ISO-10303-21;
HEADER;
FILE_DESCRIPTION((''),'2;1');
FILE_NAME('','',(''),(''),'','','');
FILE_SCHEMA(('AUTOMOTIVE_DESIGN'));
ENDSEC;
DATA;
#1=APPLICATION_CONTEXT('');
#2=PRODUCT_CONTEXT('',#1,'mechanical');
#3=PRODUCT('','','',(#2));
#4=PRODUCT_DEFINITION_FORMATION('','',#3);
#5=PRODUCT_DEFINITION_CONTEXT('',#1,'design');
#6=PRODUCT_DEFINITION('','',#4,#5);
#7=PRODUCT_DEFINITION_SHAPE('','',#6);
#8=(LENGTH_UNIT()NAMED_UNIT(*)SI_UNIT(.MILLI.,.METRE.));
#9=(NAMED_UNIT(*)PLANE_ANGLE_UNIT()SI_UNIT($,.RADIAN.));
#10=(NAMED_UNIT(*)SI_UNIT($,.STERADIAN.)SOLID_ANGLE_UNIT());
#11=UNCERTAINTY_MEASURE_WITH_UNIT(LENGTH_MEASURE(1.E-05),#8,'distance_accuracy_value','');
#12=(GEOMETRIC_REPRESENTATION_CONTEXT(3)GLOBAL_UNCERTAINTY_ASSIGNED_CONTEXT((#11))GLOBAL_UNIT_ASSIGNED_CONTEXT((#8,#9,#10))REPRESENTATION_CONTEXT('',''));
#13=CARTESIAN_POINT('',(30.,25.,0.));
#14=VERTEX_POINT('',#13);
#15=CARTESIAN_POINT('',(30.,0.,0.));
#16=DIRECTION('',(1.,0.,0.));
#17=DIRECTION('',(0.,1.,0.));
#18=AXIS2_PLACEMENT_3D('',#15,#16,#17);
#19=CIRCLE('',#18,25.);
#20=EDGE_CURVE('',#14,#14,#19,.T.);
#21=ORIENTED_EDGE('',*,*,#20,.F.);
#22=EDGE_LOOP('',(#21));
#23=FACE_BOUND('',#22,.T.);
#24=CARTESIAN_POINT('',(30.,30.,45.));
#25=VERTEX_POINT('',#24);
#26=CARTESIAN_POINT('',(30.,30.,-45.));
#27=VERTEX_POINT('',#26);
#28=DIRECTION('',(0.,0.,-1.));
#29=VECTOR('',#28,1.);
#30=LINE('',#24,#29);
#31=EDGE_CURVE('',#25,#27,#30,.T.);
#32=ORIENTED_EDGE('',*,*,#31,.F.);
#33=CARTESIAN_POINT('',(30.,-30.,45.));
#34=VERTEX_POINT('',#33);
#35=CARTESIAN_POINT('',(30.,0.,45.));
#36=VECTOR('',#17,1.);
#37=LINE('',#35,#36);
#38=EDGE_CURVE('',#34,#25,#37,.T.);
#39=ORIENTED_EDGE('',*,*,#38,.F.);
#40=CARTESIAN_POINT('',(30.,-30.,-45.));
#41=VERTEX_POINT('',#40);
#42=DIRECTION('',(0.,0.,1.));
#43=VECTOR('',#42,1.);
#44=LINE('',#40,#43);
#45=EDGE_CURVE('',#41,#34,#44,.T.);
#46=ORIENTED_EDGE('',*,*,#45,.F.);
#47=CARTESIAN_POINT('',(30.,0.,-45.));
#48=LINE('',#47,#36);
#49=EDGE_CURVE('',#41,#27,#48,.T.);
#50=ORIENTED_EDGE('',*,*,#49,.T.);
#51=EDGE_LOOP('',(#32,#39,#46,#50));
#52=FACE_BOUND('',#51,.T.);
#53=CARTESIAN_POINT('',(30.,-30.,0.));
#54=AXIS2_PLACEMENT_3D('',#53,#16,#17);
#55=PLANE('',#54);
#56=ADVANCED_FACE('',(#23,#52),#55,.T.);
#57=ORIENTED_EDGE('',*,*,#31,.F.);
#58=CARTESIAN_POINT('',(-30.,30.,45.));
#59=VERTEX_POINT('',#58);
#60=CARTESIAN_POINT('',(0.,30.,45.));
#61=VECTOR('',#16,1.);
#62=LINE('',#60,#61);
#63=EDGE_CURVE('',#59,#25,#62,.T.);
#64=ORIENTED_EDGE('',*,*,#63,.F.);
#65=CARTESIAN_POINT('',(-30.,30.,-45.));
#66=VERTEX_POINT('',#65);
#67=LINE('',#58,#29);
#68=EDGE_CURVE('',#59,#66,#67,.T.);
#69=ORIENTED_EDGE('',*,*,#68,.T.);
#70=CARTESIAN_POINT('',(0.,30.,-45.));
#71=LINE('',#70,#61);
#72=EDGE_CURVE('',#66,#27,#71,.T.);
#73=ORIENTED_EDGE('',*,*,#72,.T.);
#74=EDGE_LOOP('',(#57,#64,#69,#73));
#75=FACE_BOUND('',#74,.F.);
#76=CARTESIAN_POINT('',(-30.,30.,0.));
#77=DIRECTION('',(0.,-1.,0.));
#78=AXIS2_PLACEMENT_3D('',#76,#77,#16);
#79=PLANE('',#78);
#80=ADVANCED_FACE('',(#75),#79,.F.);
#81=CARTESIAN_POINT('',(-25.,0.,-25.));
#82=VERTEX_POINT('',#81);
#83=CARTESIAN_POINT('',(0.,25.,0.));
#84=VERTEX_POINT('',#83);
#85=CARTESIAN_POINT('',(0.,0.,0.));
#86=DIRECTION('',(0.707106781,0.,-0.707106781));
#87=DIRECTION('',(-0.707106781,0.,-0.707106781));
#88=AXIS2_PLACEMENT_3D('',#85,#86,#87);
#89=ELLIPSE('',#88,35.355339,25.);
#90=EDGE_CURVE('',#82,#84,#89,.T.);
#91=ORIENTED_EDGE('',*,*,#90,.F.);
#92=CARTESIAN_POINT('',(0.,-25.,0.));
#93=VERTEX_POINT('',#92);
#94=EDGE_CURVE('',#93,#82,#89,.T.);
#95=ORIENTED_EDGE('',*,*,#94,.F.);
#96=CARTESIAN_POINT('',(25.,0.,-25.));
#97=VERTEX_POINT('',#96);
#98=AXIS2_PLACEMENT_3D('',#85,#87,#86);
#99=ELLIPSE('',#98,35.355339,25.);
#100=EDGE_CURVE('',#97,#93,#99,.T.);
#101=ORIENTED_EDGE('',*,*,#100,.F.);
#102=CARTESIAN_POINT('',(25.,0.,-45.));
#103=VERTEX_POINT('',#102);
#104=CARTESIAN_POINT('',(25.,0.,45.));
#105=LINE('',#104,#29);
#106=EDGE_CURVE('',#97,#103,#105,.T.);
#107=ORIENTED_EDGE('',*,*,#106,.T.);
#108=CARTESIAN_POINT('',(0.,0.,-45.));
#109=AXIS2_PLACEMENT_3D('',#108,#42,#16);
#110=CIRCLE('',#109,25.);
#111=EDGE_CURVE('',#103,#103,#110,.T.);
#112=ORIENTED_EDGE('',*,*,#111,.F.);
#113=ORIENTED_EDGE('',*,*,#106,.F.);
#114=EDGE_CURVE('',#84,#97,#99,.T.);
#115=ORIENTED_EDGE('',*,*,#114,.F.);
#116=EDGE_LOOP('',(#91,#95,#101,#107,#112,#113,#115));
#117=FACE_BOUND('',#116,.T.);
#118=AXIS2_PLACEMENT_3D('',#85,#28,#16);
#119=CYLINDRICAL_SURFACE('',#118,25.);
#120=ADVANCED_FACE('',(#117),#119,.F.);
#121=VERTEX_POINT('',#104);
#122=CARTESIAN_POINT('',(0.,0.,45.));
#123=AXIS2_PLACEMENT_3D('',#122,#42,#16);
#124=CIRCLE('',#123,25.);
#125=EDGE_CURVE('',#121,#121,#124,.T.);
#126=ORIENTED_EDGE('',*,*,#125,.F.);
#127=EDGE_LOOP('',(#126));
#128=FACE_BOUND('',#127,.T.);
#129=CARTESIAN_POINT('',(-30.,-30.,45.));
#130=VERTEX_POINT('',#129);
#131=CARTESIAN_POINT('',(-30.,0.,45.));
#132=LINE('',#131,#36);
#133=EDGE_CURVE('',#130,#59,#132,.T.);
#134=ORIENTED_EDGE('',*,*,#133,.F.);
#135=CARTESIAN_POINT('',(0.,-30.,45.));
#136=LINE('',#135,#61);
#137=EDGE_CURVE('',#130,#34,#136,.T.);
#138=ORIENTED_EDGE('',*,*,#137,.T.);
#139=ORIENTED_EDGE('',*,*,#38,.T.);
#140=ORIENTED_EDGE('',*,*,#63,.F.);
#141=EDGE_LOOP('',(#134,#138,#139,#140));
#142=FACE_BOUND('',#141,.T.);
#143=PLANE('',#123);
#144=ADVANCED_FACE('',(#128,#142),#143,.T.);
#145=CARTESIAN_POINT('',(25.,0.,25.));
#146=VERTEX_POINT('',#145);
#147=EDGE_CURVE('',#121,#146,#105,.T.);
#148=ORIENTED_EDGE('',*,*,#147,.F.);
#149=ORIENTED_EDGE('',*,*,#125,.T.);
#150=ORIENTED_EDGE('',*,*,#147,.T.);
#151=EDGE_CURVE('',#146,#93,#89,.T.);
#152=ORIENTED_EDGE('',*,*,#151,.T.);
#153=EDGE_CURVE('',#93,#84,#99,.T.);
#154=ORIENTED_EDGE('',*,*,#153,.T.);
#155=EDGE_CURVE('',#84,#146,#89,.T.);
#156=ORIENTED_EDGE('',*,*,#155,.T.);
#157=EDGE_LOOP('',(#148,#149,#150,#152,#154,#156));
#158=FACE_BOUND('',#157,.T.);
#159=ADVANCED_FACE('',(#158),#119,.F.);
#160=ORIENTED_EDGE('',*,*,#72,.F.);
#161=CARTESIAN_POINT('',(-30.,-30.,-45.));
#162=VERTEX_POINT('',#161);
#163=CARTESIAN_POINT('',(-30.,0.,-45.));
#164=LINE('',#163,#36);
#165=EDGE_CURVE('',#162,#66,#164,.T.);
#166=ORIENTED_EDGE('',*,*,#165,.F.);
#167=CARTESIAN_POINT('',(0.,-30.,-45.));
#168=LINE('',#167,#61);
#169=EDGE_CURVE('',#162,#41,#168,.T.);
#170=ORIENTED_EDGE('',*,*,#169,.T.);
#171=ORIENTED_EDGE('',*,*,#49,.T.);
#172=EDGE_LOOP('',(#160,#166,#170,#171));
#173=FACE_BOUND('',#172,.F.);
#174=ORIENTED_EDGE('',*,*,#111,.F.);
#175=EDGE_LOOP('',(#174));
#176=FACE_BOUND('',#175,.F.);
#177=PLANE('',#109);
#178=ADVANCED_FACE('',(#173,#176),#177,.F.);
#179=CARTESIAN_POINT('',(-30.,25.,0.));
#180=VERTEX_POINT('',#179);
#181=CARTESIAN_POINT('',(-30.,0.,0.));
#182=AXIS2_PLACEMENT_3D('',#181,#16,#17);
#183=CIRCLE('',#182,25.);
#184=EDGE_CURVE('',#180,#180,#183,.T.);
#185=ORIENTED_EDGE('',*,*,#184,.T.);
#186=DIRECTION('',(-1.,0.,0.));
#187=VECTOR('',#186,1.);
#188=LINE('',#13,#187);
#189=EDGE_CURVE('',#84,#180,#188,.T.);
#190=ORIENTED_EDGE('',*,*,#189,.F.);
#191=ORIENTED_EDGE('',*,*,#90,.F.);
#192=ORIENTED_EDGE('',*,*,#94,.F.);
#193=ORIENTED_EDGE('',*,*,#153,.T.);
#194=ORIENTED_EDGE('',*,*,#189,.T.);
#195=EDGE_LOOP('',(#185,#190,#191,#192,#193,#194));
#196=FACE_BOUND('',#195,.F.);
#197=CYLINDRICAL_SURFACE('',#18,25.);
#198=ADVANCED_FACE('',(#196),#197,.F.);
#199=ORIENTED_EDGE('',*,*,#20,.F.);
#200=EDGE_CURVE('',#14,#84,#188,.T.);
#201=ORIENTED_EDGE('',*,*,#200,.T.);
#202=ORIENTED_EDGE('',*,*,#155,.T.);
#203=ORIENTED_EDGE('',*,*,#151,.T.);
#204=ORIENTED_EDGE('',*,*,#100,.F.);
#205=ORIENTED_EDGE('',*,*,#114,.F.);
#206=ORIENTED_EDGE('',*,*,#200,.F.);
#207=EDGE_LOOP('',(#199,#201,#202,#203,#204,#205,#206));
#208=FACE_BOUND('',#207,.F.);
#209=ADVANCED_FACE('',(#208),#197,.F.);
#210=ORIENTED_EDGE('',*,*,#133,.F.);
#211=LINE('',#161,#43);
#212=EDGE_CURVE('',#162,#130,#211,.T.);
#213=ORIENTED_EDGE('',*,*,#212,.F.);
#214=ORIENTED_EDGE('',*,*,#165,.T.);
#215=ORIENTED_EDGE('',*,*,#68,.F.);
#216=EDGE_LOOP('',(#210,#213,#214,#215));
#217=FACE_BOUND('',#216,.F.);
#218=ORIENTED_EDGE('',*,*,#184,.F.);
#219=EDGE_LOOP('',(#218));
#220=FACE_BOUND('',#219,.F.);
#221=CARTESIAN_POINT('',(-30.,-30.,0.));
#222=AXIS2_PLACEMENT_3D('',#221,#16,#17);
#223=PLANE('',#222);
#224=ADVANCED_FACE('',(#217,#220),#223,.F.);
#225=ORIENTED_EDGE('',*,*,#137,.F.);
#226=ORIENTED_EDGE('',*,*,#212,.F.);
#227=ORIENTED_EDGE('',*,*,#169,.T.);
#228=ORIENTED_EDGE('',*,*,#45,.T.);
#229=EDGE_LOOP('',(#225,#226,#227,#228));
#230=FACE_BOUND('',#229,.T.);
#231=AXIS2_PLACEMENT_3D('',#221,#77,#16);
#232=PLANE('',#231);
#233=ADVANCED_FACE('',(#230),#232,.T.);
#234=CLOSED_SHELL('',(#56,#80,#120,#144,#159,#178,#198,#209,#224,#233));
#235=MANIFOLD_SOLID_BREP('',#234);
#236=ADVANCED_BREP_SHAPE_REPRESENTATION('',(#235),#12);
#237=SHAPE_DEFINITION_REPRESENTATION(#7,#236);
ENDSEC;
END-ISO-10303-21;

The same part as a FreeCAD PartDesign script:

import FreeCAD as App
import Part
import Sketcher

V = App.Vector


def add_polygon(sketch, points):
    """Adds a closed chain of lines whose ends are joined by coincident constraints."""
    first, n = sketch.GeometryCount, len(points)
    for a, b in zip(points, points[1:] + points[:1]):
        sketch.addGeometry(Part.LineSegment(App.Vector(*a, 0), App.Vector(*b, 0)), False)
    for i in range(n):
        sketch.addConstraint(Sketcher.Constraint("Coincident", first + i, 2, first + (i + 1) % n, 1))

doc = App.newDocument("Part")
body = doc.addObject("PartDesign::Body", "Body")

# Sketch on XY plane
sketch1 = body.newObject("Sketcher::SketchObject", "Sketch")
sketch1.AttachmentSupport = (doc.getObject("XY_Plane"), [""])
sketch1.MapMode = "FlatFace"
add_polygon(sketch1, [(-30, 30), (-30, -30), (30, -30), (30, 30)])  # lines 0-3
sketch1.addGeometry(Part.Circle(V(0, 0, 0), V(0, 0, 1), 25), False)  # 4
sketch1.addConstraint([
    Sketcher.Constraint("Vertical", 0),
    Sketcher.Constraint("Horizontal", 1),
    Sketcher.Constraint("Vertical", 2),
    Sketcher.Constraint("Horizontal", 3),
    Sketcher.Constraint("Coincident", 4, 3, -1, 1),
    Sketcher.Constraint("Symmetric", 0, 2, 2, 2, -1, 1),
    Sketcher.Constraint("Equal", 3, 0),
    Sketcher.Constraint("Diameter", 4, 50.0),
    Sketcher.Constraint("DistanceX", 1, 1, 1, 2, 60.0),
])
pad1 = body.newObject("PartDesign::Pad", "Pad")
pad1.Profile = sketch1
pad1.Length = 90
pad1.Midplane = True

# Sketch on YZ plane
sketch2 = body.newObject("Sketcher::SketchObject", "Sketch001")
sketch2.AttachmentSupport = (doc.getObject("YZ_Plane"), [""])
sketch2.MapMode = "FlatFace"
sketch2.AttachmentOffset = App.Placement(V(0, 0, 30), App.Rotation())
sketch2.addGeometry(Part.Circle(V(0, 0, 0), V(0, 0, 1), 25), False)
sketch2.addConstraint([
    Sketcher.Constraint("Coincident", 0, 3, -1, 1),
    Sketcher.Constraint("Diameter", 0, 50.0),
])
pocket1 = body.newObject("PartDesign::Pocket", "Pocket")
pocket1.Profile = sketch2
pocket1.Type = "ThroughAll"

doc.recompute()
